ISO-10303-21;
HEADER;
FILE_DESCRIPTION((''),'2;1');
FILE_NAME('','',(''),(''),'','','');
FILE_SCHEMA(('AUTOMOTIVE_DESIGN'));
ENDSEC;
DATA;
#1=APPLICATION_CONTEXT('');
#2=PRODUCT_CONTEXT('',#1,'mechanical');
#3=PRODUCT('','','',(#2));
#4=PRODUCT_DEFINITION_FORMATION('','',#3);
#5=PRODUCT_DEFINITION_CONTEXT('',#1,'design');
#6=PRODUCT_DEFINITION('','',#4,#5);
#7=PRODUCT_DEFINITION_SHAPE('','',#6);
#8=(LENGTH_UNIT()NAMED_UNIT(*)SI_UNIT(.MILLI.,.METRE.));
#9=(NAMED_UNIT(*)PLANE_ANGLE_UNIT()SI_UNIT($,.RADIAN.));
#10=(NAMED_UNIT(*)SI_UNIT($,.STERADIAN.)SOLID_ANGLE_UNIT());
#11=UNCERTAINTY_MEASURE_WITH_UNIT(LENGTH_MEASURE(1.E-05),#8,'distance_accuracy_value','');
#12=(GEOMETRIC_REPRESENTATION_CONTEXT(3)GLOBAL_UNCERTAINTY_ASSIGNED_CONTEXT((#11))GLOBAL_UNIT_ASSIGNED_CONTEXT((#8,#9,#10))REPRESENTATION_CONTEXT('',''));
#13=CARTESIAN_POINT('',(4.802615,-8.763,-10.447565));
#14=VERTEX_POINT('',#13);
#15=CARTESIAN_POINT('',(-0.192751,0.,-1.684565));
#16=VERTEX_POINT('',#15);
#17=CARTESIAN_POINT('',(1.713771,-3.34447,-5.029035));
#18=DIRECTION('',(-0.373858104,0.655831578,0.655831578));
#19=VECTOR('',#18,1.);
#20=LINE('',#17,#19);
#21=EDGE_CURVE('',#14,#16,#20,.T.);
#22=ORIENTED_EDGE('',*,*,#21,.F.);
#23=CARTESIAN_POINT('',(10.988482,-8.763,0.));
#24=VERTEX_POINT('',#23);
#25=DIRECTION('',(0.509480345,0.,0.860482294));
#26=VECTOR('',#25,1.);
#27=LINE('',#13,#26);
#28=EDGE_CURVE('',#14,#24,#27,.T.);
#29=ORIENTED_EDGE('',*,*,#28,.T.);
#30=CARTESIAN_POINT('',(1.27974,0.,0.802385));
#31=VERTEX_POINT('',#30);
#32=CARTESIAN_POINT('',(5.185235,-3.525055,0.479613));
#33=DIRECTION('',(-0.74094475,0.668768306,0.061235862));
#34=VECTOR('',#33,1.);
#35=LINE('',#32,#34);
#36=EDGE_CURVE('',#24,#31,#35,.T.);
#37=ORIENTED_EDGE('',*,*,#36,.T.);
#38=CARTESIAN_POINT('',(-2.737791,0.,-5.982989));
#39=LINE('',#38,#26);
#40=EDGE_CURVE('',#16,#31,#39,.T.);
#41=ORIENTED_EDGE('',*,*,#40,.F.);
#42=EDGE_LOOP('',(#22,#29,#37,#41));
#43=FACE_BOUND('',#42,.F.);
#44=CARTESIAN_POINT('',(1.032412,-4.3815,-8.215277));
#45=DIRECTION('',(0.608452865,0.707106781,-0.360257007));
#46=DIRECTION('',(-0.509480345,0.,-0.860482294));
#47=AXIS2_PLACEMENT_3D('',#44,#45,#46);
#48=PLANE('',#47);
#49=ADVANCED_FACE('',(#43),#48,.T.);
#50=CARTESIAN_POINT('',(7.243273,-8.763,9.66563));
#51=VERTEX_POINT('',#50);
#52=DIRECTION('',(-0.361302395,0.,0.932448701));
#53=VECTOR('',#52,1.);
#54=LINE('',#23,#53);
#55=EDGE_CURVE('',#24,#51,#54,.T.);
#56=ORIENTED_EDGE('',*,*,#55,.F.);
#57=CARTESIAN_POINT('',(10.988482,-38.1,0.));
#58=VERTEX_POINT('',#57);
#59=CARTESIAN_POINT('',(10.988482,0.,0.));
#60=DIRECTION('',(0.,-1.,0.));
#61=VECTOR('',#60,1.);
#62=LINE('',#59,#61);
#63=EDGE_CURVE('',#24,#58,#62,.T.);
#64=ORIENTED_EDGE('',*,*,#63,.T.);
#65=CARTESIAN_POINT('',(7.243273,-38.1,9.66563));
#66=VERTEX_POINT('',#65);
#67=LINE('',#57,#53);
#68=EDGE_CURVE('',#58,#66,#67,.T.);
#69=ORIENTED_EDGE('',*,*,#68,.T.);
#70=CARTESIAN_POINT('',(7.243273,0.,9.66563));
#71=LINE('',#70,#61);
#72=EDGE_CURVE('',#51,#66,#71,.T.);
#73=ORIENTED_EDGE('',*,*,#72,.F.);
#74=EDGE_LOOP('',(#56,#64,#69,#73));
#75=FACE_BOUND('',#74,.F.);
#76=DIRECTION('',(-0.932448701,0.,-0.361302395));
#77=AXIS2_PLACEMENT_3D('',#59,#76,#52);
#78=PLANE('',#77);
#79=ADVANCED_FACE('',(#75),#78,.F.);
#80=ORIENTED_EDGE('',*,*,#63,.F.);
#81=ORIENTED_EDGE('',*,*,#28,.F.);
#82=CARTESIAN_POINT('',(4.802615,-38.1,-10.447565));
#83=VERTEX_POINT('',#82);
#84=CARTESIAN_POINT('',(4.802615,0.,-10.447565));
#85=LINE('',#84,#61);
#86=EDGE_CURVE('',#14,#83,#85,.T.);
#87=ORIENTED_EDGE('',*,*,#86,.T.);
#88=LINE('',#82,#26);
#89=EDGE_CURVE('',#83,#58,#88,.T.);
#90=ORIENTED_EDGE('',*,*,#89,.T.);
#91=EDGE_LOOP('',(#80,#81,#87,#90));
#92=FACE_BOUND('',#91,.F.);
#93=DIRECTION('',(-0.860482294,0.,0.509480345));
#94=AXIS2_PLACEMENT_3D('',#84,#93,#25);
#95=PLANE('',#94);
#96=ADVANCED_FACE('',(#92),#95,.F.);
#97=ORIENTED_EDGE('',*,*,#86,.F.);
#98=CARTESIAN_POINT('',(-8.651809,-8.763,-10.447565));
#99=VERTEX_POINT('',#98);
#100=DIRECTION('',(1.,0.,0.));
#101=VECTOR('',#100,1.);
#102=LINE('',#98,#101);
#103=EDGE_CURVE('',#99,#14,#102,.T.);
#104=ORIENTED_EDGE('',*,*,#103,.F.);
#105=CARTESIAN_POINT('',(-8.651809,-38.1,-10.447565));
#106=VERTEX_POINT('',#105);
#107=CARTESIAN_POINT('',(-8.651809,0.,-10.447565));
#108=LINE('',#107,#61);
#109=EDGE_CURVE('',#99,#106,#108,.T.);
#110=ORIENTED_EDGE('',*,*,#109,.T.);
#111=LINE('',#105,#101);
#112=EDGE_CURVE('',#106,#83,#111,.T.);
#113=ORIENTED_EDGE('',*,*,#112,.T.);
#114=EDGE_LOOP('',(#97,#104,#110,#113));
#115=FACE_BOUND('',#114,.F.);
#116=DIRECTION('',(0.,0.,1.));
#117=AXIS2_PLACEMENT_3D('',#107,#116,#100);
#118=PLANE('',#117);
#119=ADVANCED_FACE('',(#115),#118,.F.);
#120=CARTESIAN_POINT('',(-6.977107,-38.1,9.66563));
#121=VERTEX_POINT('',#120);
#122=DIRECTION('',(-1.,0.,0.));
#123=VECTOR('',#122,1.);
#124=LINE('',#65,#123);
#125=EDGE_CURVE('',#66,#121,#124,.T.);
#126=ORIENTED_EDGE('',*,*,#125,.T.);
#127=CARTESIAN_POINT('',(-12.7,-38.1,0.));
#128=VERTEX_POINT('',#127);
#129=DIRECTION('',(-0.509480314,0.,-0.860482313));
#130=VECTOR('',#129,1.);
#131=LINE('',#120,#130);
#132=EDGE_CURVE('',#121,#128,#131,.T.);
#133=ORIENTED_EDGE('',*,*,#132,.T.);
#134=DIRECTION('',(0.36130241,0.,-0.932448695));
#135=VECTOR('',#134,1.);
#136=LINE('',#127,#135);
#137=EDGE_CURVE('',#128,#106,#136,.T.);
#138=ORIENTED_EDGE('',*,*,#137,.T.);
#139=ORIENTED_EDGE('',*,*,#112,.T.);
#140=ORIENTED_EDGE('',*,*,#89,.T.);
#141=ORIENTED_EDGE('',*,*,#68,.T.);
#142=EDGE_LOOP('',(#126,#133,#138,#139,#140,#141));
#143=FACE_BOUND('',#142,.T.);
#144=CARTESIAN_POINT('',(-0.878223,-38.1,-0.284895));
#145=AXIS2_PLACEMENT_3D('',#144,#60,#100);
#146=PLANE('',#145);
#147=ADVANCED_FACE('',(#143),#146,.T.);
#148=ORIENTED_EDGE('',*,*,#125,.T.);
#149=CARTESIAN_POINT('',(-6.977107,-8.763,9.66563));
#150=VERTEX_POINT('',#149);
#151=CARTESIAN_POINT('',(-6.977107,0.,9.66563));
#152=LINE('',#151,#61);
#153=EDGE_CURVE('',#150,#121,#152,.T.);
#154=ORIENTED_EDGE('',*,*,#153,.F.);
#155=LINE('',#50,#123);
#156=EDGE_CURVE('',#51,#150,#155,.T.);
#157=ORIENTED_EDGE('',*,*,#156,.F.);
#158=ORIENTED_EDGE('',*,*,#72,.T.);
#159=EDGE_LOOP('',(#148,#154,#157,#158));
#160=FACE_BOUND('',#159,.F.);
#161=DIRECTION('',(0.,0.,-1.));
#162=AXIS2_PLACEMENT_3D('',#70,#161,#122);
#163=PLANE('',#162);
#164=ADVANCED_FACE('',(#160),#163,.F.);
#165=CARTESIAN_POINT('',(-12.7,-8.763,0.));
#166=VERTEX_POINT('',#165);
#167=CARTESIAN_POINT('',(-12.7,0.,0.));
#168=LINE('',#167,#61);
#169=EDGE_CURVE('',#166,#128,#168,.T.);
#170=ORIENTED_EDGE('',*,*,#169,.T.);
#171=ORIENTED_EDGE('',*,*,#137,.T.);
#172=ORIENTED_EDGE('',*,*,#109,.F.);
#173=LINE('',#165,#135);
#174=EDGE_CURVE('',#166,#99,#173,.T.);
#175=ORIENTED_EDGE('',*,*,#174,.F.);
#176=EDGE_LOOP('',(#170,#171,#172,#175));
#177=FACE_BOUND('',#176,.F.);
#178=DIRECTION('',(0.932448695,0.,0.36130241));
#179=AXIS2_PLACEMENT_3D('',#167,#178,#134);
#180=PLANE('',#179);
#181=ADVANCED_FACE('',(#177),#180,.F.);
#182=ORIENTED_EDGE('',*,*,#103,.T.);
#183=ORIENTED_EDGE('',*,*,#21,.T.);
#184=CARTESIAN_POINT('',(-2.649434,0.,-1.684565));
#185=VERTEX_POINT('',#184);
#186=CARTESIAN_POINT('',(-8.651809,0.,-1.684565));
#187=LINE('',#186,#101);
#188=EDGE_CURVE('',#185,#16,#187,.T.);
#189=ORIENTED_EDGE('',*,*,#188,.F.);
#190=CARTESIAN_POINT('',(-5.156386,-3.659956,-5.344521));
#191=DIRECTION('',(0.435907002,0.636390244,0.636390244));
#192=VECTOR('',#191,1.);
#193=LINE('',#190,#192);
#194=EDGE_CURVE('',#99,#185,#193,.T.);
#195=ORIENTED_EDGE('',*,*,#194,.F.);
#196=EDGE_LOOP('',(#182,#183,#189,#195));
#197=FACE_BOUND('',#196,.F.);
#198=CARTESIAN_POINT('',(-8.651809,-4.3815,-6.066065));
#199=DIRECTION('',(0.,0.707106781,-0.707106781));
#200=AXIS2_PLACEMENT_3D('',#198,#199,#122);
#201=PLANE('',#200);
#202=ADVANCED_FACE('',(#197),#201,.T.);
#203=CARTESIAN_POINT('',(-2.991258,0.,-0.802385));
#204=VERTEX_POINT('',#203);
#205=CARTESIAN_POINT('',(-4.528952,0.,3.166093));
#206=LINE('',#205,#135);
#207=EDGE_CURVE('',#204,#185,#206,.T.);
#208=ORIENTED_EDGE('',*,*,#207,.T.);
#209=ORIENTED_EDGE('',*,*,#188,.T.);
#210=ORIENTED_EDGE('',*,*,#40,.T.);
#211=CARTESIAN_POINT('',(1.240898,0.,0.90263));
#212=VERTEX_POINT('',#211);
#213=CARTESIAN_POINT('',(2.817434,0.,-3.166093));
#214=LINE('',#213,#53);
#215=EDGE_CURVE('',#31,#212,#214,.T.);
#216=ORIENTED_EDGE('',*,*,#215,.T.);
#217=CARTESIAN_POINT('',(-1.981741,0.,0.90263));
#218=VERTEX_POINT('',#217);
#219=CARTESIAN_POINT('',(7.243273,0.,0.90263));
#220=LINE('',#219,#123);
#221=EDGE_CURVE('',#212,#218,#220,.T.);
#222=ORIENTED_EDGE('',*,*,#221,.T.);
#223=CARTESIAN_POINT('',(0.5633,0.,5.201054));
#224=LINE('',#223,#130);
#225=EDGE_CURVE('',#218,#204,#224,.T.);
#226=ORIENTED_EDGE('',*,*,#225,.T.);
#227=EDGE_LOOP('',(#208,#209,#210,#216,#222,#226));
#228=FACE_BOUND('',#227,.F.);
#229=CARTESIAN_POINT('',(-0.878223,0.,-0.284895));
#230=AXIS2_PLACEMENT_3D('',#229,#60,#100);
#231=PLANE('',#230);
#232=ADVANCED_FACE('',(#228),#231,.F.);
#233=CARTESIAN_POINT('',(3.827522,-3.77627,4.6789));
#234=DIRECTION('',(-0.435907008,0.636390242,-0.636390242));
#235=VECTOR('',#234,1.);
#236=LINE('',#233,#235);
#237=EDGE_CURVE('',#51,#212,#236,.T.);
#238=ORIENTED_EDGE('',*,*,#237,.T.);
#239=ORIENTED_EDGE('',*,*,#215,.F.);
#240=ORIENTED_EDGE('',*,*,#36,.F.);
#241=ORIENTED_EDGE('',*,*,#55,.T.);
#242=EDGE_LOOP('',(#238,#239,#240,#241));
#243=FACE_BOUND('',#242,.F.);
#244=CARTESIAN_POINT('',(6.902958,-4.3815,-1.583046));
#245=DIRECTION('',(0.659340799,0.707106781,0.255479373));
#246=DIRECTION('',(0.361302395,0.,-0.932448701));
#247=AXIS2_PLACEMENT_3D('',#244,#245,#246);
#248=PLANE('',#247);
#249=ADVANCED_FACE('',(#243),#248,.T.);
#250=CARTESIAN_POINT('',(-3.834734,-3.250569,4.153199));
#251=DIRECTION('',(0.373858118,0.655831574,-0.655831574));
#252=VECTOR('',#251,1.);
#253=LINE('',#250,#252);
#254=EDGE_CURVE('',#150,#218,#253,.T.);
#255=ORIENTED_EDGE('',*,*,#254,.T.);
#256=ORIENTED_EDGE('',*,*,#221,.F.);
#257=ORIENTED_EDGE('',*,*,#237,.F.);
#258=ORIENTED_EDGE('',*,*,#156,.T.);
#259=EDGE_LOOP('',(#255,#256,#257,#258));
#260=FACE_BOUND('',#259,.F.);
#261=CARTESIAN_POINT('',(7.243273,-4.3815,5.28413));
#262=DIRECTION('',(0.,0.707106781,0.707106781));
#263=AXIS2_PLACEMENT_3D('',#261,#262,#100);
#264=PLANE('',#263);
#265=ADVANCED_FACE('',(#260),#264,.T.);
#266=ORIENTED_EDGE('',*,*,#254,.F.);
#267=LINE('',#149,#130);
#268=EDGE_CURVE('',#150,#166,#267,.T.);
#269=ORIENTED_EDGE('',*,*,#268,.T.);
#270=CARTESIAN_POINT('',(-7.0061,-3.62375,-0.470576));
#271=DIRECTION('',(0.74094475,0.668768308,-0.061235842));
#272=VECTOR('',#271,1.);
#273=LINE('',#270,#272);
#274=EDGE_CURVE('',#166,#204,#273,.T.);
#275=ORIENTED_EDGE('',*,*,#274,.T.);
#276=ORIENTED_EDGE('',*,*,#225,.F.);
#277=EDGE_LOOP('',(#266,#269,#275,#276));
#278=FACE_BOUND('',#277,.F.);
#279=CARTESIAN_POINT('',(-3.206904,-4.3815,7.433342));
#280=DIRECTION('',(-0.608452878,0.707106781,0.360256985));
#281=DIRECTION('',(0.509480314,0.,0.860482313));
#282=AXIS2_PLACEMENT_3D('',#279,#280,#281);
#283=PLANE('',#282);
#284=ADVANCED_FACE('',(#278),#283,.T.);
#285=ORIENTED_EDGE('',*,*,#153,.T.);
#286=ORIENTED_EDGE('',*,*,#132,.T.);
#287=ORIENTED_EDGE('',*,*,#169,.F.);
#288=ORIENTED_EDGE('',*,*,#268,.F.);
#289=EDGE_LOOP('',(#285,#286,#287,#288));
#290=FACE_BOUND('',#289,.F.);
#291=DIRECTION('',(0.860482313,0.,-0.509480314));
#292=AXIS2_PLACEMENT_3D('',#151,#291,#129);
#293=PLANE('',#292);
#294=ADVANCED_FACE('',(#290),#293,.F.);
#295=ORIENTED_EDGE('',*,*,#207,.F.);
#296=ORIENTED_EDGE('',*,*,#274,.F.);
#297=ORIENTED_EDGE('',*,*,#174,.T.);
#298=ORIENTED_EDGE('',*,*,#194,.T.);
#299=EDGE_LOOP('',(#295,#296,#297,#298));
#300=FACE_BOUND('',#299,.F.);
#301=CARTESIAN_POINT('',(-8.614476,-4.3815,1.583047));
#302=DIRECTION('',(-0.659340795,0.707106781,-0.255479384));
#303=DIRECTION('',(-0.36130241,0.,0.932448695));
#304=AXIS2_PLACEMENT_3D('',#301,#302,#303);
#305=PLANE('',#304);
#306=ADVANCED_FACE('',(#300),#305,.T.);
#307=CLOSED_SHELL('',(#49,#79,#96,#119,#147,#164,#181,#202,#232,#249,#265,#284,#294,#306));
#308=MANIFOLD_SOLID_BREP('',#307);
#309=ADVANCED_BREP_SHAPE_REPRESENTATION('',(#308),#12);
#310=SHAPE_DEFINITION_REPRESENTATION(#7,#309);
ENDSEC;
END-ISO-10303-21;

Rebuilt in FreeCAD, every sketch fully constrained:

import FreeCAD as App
import Part
import Sketcher

V = App.Vector
Q = App.Units.Quantity


def edges_at(feature, points):
    """Names of the edges that pass closest to the given points."""
    edges = feature.Shape.Edges
    near = lambda p: min(range(len(edges)), key=lambda i: edges[i].distToShape(Part.Vertex(*p))[0])
    return sorted({f"Edge{near(p) + 1}" for p in points})

doc = App.newDocument("Part")
body = doc.addObject("PartDesign::Body", "Body")

# Sketch on XZ plane
sketch1 = body.newObject("Sketcher::SketchObject", "Sketch")
sketch1.AttachmentSupport = (doc.getObject("XZ_Plane"), [""])
sketch1.MapMode = "FlatFace"
sketch1.addGeometry(Part.LineSegment(V(-6.977107, 9.66563, 0), V(-12.7, 0, 0)), False)
sketch1.addGeometry(Part.LineSegment(V(-12.7, 0, 0), V(-8.651809, -10.447565, 0)), False)
sketch1.addGeometry(Part.LineSegment(V(-8.651809, -10.447565, 0), V(4.802615, -10.447565, 0)), False)
sketch1.addGeometry(Part.LineSegment(V(4.802615, -10.447565, 0), V(10.988482, 0, 0)), False)
sketch1.addGeometry(Part.LineSegment(V(10.988482, 0, 0), V(7.243273, 9.66563, 0)), False)
sketch1.addGeometry(Part.LineSegment(V(7.243273, 9.66563, 0), V(-6.977107, 9.66563, 0)), False)
sketch1.addConstraint(Sketcher.Constraint("Coincident", 0, 2, 1, 1))
sketch1.addConstraint(Sketcher.Constraint("Coincident", 1, 2, 2, 1))
sketch1.addConstraint(Sketcher.Constraint("Coincident", 2, 2, 3, 1))
sketch1.addConstraint(Sketcher.Constraint("Coincident", 3, 2, 4, 1))
sketch1.addConstraint(Sketcher.Constraint("Coincident", 4, 2, 5, 1))
sketch1.addConstraint(Sketcher.Constraint("Coincident", 5, 2, 0, 1))
sketch1.addConstraint(Sketcher.Constraint("Horizontal", 2))
sketch1.addConstraint(Sketcher.Constraint("Horizontal", 5))
sketch1.addConstraint(Sketcher.Constraint("PointOnObject", 0, 2, -1))
sketch1.addConstraint(Sketcher.Constraint("PointOnObject", 3, 2, -1))
sketch1.addConstraint(Sketcher.Constraint("Parallel", 0, 3))
sketch1.addConstraint(Sketcher.Constraint("Parallel", 1, 4))
sketch1.addConstraint(Sketcher.Constraint("DistanceX", 0, 2, -1, 1, Q("0.5 in")))
sketch1.addConstraint(Sketcher.Constraint("DistanceX", 5, 2, 5, 1, Q("14.22038 mm")))
sketch1.addConstraint(Sketcher.Constraint("DistanceX", 1, 2, 5, 2, Q("1.674702 mm")))
sketch1.addConstraint(Sketcher.Constraint("Distance", 1, Q("11.20444 mm")))
sketch1.addConstraint(Sketcher.Constraint("DistanceX", 2, 1, 2, 2, Q("13.454424 mm")))
sketch1.addConstraint(Sketcher.Constraint("DistanceX", 1, 2, -1, 1, Q("8.651809 mm")))
pad1 = body.newObject("PartDesign::Pad", "Pad")
pad1.Profile = sketch1
pad1.Length = Q("1.5 in")
doc.recompute()

chamfer = body.newObject("PartDesign::Chamfer", "Chamfer")
chamfer.Base = (pad1, edges_at(pad1, [
    (0.133, 0, 9.666),
    (-9.839, 0, 4.833),
    (-10.676, 0, -5.224),
    (-1.925, 0, -10.448),
    (7.896, 0, -5.224),
    (9.116, 0, 4.833),
]))
chamfer.Size = Q("0.345 in")

doc.recompute()
